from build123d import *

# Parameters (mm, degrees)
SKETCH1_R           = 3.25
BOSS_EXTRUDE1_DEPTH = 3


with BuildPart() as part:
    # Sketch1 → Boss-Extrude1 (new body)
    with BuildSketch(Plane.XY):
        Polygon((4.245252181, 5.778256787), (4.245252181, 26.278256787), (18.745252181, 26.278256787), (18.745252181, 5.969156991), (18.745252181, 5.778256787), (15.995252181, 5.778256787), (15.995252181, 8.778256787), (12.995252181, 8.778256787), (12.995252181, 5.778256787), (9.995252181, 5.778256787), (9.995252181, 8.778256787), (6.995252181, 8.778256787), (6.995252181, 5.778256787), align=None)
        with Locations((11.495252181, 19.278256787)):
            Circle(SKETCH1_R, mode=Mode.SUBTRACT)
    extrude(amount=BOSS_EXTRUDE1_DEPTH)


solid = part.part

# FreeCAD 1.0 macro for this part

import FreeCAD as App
import Part
import Sketcher
Q = App.Units.Quantity

doc = App.newDocument("Part")
body = doc.addObject("PartDesign::Body", "Body")

sketch1 = doc.addObject("Sketcher::SketchObject", "Sketch")
body.addObject(sketch1)
sketch1.AttachmentSupport = (doc.XY_Plane, [""])
sketch1.MapMode = "FlatFace"
sketch1.addGeometry([
    Part.LineSegment(App.Vector(4.2, 26.3, 0), App.Vector(4.2, 5.8, 0)),
    Part.LineSegment(App.Vector(4.2, 5.8, 0), App.Vector(7, 5.8, 0)),
    Part.LineSegment(App.Vector(7, 5.8, 0), App.Vector(7, 8.8, 0)),
    Part.LineSegment(App.Vector(7, 8.8, 0), App.Vector(10, 8.8, 0)),
    Part.LineSegment(App.Vector(10, 8.8, 0), App.Vector(10, 5.8, 0)),
    Part.LineSegment(App.Vector(10, 5.8, 0), App.Vector(13, 5.8, 0)),
    Part.LineSegment(App.Vector(13, 5.8, 0), App.Vector(13, 8.8, 0)),
    Part.LineSegment(App.Vector(13, 8.8, 0), App.Vector(16, 8.8, 0)),
    Part.LineSegment(App.Vector(16, 8.8, 0), App.Vector(16, 5.8, 0)),
    Part.LineSegment(App.Vector(16, 5.8, 0), App.Vector(18.7, 5.8, 0)),
    Part.LineSegment(App.Vector(18.7, 5.8, 0), App.Vector(18.7, 26.3, 0)),
    Part.LineSegment(App.Vector(18.7, 26.3, 0), App.Vector(4.2, 26.3, 0)),
    Part.Circle(App.Vector(11.5, 19.3, 0), App.Vector(0, 0, 1), 3.2),
], False)
sketch1.addConstraint([
    Sketcher.Constraint("Coincident", 0, 2, 1, 1),
    Sketcher.Constraint("Coincident", 1, 2, 2, 1),
    Sketcher.Constraint("Coincident", 2, 2, 3, 1),
    Sketcher.Constraint("Coincident", 3, 2, 4, 1),
    Sketcher.Constraint("Coincident", 4, 2, 5, 1),
    Sketcher.Constraint("Coincident", 5, 2, 6, 1),
    Sketcher.Constraint("Coincident", 6, 2, 7, 1),
    Sketcher.Constraint("Coincident", 7, 2, 8, 1),
    Sketcher.Constraint("Coincident", 8, 2, 9, 1),
    Sketcher.Constraint("Coincident", 9, 2, 10, 1),
    Sketcher.Constraint("Coincident", 10, 2, 11, 1),
    Sketcher.Constraint("Coincident", 11, 2, 0, 1),
    Sketcher.Constraint("Vertical", 0),
    Sketcher.Constraint("Horizontal", 1),
    Sketcher.Constraint("Vertical", 2),
    Sketcher.Constraint("Horizontal", 3),
    Sketcher.Constraint("Vertical", 4),
    Sketcher.Constraint("Horizontal", 5),
    Sketcher.Constraint("Vertical", 6),
    Sketcher.Constraint("Horizontal", 7),
    Sketcher.Constraint("Vertical", 8),
    Sketcher.Constraint("Horizontal", 9),
    Sketcher.Constraint("Vertical", 10),
    Sketcher.Constraint("Horizontal", 11),
    Sketcher.Constraint("Horizontal", 1, 2, 4, 2),
    Sketcher.Constraint("Horizontal", 3, 2, 6, 2),
    Sketcher.Constraint("Horizontal", 5, 2, 8, 2),
    Sketcher.Constraint("Equal", 3, 5),
    Sketcher.Constraint("Equal", 5, 7),
    Sketcher.Constraint("Equal", 1, 9),
    Sketcher.Constraint("Equal", 7, 2),
    Sketcher.Constraint("Diameter", 12, Q("6.5 mm")),
    Sketcher.Constraint("DistanceX", 3, 1, 3, 2, Q("3 mm")),
    Sketcher.Constraint("DistanceX", 11, 2, 11, 1, Q("14.5 mm")),
    Sketcher.Constraint("DistanceY", 0, 2, 0, 1, Q("20.5 mm")),
    Sketcher.Constraint("DistanceY", 12, 3, 10, 2, Q("7 mm")),
    Sketcher.Constraint("DistanceX", 1, 2, 12, 3, Q("4.5 mm")),
    Sketcher.Constraint("DistanceX", -1, 1, 12, 3, Q("11.495252 mm")),
    Sketcher.Constraint("DistanceY", -1, 1, 12, 3, Q("19.278257 mm")),
])
pad1 = doc.addObject("PartDesign::Pad", "Pad")
body.addObject(pad1)
pad1.Profile = sketch1
pad1.Length = 3

doc.recompute()
